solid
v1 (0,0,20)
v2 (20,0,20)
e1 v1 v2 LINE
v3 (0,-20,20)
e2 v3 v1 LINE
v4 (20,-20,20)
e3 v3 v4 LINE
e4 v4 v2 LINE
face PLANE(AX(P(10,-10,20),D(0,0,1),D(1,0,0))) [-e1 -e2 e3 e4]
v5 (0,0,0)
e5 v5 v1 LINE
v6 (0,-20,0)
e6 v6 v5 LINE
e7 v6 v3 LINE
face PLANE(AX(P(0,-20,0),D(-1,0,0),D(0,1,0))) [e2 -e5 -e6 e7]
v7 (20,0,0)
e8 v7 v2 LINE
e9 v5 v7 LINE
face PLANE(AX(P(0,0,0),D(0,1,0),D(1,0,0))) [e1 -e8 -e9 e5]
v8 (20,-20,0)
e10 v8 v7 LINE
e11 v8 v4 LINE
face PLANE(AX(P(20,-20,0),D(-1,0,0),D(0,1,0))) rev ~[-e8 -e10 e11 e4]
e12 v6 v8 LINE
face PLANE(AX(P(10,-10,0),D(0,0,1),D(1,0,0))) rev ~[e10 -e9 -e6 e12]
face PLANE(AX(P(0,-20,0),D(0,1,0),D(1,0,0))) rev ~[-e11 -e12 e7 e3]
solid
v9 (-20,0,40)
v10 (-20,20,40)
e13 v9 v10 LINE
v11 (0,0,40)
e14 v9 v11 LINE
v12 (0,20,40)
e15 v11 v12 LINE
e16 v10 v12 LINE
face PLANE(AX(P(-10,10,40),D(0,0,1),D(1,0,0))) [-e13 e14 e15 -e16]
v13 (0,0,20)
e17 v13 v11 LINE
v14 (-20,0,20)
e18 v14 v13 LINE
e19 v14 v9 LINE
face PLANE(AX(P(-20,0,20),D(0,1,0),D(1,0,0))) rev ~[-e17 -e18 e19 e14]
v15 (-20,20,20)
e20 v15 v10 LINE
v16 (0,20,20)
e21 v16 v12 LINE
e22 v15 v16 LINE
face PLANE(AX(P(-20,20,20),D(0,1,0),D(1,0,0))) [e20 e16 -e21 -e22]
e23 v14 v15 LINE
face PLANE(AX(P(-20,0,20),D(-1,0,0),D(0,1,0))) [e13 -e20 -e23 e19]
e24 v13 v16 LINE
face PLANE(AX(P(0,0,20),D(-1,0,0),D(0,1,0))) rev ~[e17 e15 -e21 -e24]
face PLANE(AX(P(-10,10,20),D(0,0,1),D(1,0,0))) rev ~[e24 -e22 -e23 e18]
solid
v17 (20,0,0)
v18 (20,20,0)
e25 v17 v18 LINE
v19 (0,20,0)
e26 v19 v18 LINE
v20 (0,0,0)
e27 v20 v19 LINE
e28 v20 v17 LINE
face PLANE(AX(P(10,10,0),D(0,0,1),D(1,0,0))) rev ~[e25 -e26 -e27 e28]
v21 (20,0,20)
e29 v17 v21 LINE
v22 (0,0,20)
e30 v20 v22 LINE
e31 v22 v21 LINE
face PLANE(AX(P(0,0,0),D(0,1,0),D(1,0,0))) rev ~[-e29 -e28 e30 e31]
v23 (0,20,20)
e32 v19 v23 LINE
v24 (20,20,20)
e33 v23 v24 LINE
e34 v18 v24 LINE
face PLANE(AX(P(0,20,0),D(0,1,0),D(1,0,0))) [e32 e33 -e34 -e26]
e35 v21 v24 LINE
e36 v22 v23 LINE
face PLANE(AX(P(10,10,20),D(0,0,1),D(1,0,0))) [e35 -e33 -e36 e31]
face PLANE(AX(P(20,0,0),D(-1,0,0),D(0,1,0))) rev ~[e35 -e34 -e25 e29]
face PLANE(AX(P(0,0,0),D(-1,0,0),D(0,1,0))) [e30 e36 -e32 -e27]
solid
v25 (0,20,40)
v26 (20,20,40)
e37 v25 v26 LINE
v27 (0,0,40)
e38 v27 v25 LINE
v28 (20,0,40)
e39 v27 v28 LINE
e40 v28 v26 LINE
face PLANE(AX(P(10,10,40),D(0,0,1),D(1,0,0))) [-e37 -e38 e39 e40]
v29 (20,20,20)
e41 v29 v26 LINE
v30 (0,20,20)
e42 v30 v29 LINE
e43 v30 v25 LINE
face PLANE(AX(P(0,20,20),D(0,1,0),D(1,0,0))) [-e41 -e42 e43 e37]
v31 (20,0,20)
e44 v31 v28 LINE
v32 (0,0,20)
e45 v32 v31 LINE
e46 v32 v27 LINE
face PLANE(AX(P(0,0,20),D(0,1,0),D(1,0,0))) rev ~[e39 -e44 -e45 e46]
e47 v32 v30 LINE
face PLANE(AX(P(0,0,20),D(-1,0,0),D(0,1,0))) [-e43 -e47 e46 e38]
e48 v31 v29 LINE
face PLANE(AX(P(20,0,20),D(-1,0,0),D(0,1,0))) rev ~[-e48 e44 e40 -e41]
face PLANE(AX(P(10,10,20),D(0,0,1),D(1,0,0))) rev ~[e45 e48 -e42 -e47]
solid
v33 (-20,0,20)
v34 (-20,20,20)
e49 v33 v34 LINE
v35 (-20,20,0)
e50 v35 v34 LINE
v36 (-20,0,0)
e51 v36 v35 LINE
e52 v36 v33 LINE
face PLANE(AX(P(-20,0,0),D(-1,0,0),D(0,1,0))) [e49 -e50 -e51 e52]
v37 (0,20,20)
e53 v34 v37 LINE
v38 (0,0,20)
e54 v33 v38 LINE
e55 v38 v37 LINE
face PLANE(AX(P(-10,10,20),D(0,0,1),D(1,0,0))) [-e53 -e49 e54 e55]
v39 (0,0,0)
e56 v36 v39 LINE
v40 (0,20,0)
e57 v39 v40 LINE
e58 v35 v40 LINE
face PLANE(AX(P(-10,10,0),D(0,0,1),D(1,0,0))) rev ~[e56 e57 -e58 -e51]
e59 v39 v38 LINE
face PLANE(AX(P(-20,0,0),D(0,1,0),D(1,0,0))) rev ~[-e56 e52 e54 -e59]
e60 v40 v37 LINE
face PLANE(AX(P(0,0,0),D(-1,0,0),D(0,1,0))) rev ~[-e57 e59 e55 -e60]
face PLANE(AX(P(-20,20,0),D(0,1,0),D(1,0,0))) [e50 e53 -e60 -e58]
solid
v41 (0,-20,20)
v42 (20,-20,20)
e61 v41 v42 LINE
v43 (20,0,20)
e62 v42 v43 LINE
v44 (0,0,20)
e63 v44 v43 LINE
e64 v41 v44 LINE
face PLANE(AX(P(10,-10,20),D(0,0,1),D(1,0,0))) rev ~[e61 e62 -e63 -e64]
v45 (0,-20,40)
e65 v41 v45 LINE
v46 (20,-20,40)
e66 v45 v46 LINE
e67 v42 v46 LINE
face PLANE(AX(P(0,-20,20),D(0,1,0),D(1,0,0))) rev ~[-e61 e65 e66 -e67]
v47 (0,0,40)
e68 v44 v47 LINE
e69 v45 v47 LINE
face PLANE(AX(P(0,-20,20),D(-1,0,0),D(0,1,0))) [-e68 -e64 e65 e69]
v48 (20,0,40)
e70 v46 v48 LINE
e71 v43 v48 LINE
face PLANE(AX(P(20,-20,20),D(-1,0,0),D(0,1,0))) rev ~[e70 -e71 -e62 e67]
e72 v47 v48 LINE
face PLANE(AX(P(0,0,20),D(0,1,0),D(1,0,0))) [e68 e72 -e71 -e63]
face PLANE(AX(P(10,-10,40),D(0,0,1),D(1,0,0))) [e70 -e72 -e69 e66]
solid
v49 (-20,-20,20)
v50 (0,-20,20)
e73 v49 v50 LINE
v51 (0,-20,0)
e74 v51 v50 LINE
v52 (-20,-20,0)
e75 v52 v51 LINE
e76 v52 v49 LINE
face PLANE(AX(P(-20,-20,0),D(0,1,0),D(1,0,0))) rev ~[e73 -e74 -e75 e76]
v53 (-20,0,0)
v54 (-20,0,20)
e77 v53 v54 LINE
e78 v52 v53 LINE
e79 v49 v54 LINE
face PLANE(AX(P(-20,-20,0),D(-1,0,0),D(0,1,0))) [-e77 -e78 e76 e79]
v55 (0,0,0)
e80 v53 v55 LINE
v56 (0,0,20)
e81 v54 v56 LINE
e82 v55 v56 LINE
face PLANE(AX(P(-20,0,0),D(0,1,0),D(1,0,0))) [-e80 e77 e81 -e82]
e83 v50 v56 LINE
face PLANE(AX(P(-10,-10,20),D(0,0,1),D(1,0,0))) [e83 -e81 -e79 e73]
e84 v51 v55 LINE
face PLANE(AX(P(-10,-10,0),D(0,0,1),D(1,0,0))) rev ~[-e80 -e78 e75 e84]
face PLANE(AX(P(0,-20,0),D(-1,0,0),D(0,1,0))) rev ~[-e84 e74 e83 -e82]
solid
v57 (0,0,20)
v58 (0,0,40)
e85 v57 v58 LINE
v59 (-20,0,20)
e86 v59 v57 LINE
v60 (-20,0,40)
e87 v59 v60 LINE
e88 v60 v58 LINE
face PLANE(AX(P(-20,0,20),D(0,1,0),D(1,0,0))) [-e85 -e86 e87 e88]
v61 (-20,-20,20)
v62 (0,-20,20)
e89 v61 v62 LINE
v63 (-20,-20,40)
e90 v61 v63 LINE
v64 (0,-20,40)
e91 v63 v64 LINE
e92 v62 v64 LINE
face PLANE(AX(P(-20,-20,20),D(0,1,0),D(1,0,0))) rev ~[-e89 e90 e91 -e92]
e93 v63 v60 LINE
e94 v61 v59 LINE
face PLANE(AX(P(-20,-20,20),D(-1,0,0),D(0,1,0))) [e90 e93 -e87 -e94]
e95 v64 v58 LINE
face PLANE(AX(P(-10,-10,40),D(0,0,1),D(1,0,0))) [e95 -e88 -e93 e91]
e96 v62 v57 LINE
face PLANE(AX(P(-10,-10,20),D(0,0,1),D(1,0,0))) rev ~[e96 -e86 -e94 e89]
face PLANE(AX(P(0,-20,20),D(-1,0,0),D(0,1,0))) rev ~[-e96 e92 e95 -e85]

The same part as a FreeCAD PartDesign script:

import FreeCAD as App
import Part
import Sketcher

doc = App.newDocument("Part")
params = doc.addObject("Spreadsheet::Sheet", "Params")
for row, (alias, value) in enumerate([
    ("sketch1_width", "20 mm"),
    ("pad1_length", "20 mm"),
    ("sketch2_width", "20 mm"),
    ("pad2_length", "20 mm"),
    ("sketch3_width", "20 mm"),
    ("pad3_length", "20 mm"),
    ("sketch4_width", "20 mm"),
    ("pad4_length", "20 mm"),
], start=1):
    params.set(f"A{row}", alias)
    params.set(f"B{row}", "=" + value)
    params.setAlias(f"B{row}", alias)

body = doc.addObject("PartDesign::Body", "Body")
body.AllowCompound = True

# Sketch on XY plane
sketch1 = body.newObject("Sketcher::SketchObject", "Sketch")
sketch1.AttachmentSupport = (doc.getObject("XY_Plane"), [""])
sketch1.MapMode = "FlatFace"
sketch1.addGeometry(Part.LineSegment(App.Vector(-20, 20, 0), App.Vector(-20, 0, 0)), False)
sketch1.addGeometry(Part.LineSegment(App.Vector(-20, 0, 0), App.Vector(0, 0, 0)), False)
sketch1.addGeometry(Part.LineSegment(App.Vector(0, 0, 0), App.Vector(0, 20, 0)), False)
sketch1.addGeometry(Part.LineSegment(App.Vector(0, 20, 0), App.Vector(-20, 20, 0)), False)
sketch1.addGeometry(Part.LineSegment(App.Vector(0, 0, 0), App.Vector(0, -20, 0)), False)
sketch1.addGeometry(Part.LineSegment(App.Vector(0, -20, 0), App.Vector(20, -20, 0)), False)
sketch1.addGeometry(Part.LineSegment(App.Vector(20, -20, 0), App.Vector(20, 0, 0)), False)
sketch1.addGeometry(Part.LineSegment(App.Vector(20, 0, 0), App.Vector(0, 0, 0)), False)
sketch1.addConstraint(Sketcher.Constraint("Coincident", 0, 2, 1, 1))
sketch1.addConstraint(Sketcher.Constraint("Coincident", 1, 2, 2, 1))
sketch1.addConstraint(Sketcher.Constraint("Coincident", 2, 2, 3, 1))
sketch1.addConstraint(Sketcher.Constraint("Coincident", 3, 2, 0, 1))
sketch1.addConstraint(Sketcher.Constraint("Coincident", 4, 2, 5, 1))
sketch1.addConstraint(Sketcher.Constraint("Coincident", 5, 2, 6, 1))
sketch1.addConstraint(Sketcher.Constraint("Coincident", 6, 2, 7, 1))
sketch1.addConstraint(Sketcher.Constraint("Coincident", 7, 2, 4, 1))
sketch1.addConstraint(Sketcher.Constraint("Vertical", 0))
sketch1.addConstraint(Sketcher.Constraint("Horizontal", 1))
sketch1.addConstraint(Sketcher.Constraint("Vertical", 2))
sketch1.addConstraint(Sketcher.Constraint("Horizontal", 3))
sketch1.addConstraint(Sketcher.Constraint("Vertical", 4))
sketch1.addConstraint(Sketcher.Constraint("Horizontal", 5))
sketch1.addConstraint(Sketcher.Constraint("Vertical", 6))
sketch1.addConstraint(Sketcher.Constraint("Horizontal", 7))
sketch1.addConstraint(Sketcher.Constraint("Coincident", 1, 2, -1, 1))
sketch1.addConstraint(Sketcher.Constraint("Coincident", 7, 2, -1, 1))
sketch1.addConstraint(Sketcher.Constraint("Symmetric", 3, 2, 5, 2, -1, 1))
sketch1.addConstraint(Sketcher.Constraint("Equal", 7, 0))
sketch1.addConstraint(Sketcher.Constraint("DistanceX", 1, 1, 1, 2, 20.0))
sketch1.setExpression("Constraints[20]", "Params.sketch1_width")
pad1 = body.newObject("PartDesign::Pad", "Pad")
pad1.Profile = sketch1
pad1.setExpression("Length", "Params.pad1_length")
body2 = doc.addObject("PartDesign::Body", "Body001")
body2.AllowCompound = True

# Sketch on XY plane
sketch2 = body2.newObject("Sketcher::SketchObject", "Sketch001")
sketch2.AttachmentSupport = (doc.getObject("XY_Plane001"), [""])
sketch2.MapMode = "FlatFace"
sketch2.addGeometry(Part.LineSegment(App.Vector(0, 20, 0), App.Vector(0, 0, 0)), False)
sketch2.addGeometry(Part.LineSegment(App.Vector(0, 0, 0), App.Vector(20, 0, 0)), False)
sketch2.addGeometry(Part.LineSegment(App.Vector(20, 0, 0), App.Vector(20, 20, 0)), False)
sketch2.addGeometry(Part.LineSegment(App.Vector(20, 20, 0), App.Vector(0, 20, 0)), False)
sketch2.addGeometry(Part.LineSegment(App.Vector(-20, 0, 0), App.Vector(-20, -20, 0)), False)
sketch2.addGeometry(Part.LineSegment(App.Vector(-20, -20, 0), App.Vector(0, -20, 0)), False)
sketch2.addGeometry(Part.LineSegment(App.Vector(0, -20, 0), App.Vector(0, 0, 0)), False)
sketch2.addGeometry(Part.LineSegment(App.Vector(0, 0, 0), App.Vector(-20, 0, 0)), False)
sketch2.addConstraint(Sketcher.Constraint("Coincident", 0, 2, 1, 1))
sketch2.addConstraint(Sketcher.Constraint("Coincident", 1, 2, 2, 1))
sketch2.addConstraint(Sketcher.Constraint("Coincident", 2, 2, 3, 1))
sketch2.addConstraint(Sketcher.Constraint("Coincident", 3, 2, 0, 1))
sketch2.addConstraint(Sketcher.Constraint("Coincident", 4, 2, 5, 1))
sketch2.addConstraint(Sketcher.Constraint("Coincident", 5, 2, 6, 1))
sketch2.addConstraint(Sketcher.Constraint("Coincident", 6, 2, 7, 1))
sketch2.addConstraint(Sketcher.Constraint("Coincident", 7, 2, 4, 1))
sketch2.addConstraint(Sketcher.Constraint("Vertical", 0))
sketch2.addConstraint(Sketcher.Constraint("Horizontal", 1))
sketch2.addConstraint(Sketcher.Constraint("Vertical", 2))
sketch2.addConstraint(Sketcher.Constraint("Horizontal", 3))
sketch2.addConstraint(Sketcher.Constraint("Vertical", 4))
sketch2.addConstraint(Sketcher.Constraint("Horizontal", 5))
sketch2.addConstraint(Sketcher.Constraint("Vertical", 6))
sketch2.addConstraint(Sketcher.Constraint("Horizontal", 7))
sketch2.addConstraint(Sketcher.Constraint("Coincident", 0, 2, -1, 1))
sketch2.addConstraint(Sketcher.Constraint("Coincident", 6, 2, -1, 1))
sketch2.addConstraint(Sketcher.Constraint("Symmetric", 2, 2, 4, 2, -1, 1))
sketch2.addConstraint(Sketcher.Constraint("Equal", 7, 0))
sketch2.addConstraint(Sketcher.Constraint("DistanceX", 1, 1, 1, 2, 20.0))
sketch2.setExpression("Constraints[20]", "Params.sketch2_width")
pad2 = body2.newObject("PartDesign::Pad", "Pad001")
pad2.Profile = sketch2
pad2.setExpression("Length", "Params.pad2_length")
body3 = doc.addObject("PartDesign::Body", "Body002")
body3.AllowCompound = True

# Sketch on XY plane
sketch3 = body3.newObject("Sketcher::SketchObject", "Sketch002")
sketch3.AttachmentSupport = (doc.getObject("XY_Plane002"), [""])
sketch3.MapMode = "FlatFace"
sketch3.AttachmentOffset = App.Placement(App.Vector(0, 0, 20), App.Rotation())
sketch3.addGeometry(Part.LineSegment(App.Vector(-20, 20, 0), App.Vector(-20, 0, 0)), False)
sketch3.addGeometry(Part.LineSegment(App.Vector(-20, 0, 0), App.Vector(0, 0, 0)), False)
sketch3.addGeometry(Part.LineSegment(App.Vector(0, 0, 0), App.Vector(0, 20, 0)), False)
sketch3.addGeometry(Part.LineSegment(App.Vector(0, 20, 0), App.Vector(-20, 20, 0)), False)
sketch3.addGeometry(Part.LineSegment(App.Vector(0, 0, 0), App.Vector(0, -20, 0)), False)
sketch3.addGeometry(Part.LineSegment(App.Vector(0, -20, 0), App.Vector(20, -20, 0)), False)
sketch3.addGeometry(Part.LineSegment(App.Vector(20, -20, 0), App.Vector(20, 0, 0)), False)
sketch3.addGeometry(Part.LineSegment(App.Vector(20, 0, 0), App.Vector(0, 0, 0)), False)
sketch3.addConstraint(Sketcher.Constraint("Coincident", 0, 2, 1, 1))
sketch3.addConstraint(Sketcher.Constraint("Coincident", 1, 2, 2, 1))
sketch3.addConstraint(Sketcher.Constraint("Coincident", 2, 2, 3, 1))
sketch3.addConstraint(Sketcher.Constraint("Coincident", 3, 2, 0, 1))
sketch3.addConstraint(Sketcher.Constraint("Coincident", 4, 2, 5, 1))
sketch3.addConstraint(Sketcher.Constraint("Coincident", 5, 2, 6, 1))
sketch3.addConstraint(Sketcher.Constraint("Coincident", 6, 2, 7, 1))
sketch3.addConstraint(Sketcher.Constraint("Coincident", 7, 2, 4, 1))
sketch3.addConstraint(Sketcher.Constraint("Vertical", 0))
sketch3.addConstraint(Sketcher.Constraint("Horizontal", 1))
sketch3.addConstraint(Sketcher.Constraint("Vertical", 2))
sketch3.addConstraint(Sketcher.Constraint("Horizontal", 3))
sketch3.addConstraint(Sketcher.Constraint("Vertical", 4))
sketch3.addConstraint(Sketcher.Constraint("Horizontal", 5))
sketch3.addConstraint(Sketcher.Constraint("Vertical", 6))
sketch3.addConstraint(Sketcher.Constraint("Horizontal", 7))
sketch3.addConstraint(Sketcher.Constraint("Coincident", 1, 2, -1, 1))
sketch3.addConstraint(Sketcher.Constraint("Coincident", 7, 2, -1, 1))
sketch3.addConstraint(Sketcher.Constraint("Symmetric", 3, 2, 5, 2, -1, 1))
sketch3.addConstraint(Sketcher.Constraint("Equal", 7, 0))
sketch3.addConstraint(Sketcher.Constraint("DistanceX", 1, 1, 1, 2, 20.0))
sketch3.setExpression("Constraints[20]", "Params.sketch3_width")
pad3 = body3.newObject("PartDesign::Pad", "Pad002")
pad3.Profile = sketch3
pad3.setExpression("Length", "Params.pad3_length")
body4 = doc.addObject("PartDesign::Body", "Body003")
body4.AllowCompound = True

# Sketch on XY plane
sketch4 = body4.newObject("Sketcher::SketchObject", "Sketch003")
sketch4.AttachmentSupport = (doc.getObject("XY_Plane003"), [""])
sketch4.MapMode = "FlatFace"
sketch4.AttachmentOffset = App.Placement(App.Vector(0, 0, 20), App.Rotation())
sketch4.addGeometry(Part.LineSegment(App.Vector(-20, 0, 0), App.Vector(-20, -20, 0)), False)
sketch4.addGeometry(Part.LineSegment(App.Vector(-20, -20, 0), App.Vector(0, -20, 0)), False)
sketch4.addGeometry(Part.LineSegment(App.Vector(0, -20, 0), App.Vector(0, 0, 0)), False)
sketch4.addGeometry(Part.LineSegment(App.Vector(0, 0, 0), App.Vector(-20, 0, 0)), False)
sketch4.addGeometry(Part.LineSegment(App.Vector(0, 20, 0), App.Vector(0, 0, 0)), False)
sketch4.addGeometry(Part.LineSegment(App.Vector(0, 0, 0), App.Vector(20, 0, 0)), False)
sketch4.addGeometry(Part.LineSegment(App.Vector(20, 0, 0), App.Vector(20, 20, 0)), False)
sketch4.addGeometry(Part.LineSegment(App.Vector(20, 20, 0), App.Vector(0, 20, 0)), False)
sketch4.addConstraint(Sketcher.Constraint("Coincident", 0, 2, 1, 1))
sketch4.addConstraint(Sketcher.Constraint("Coincident", 1, 2, 2, 1))
sketch4.addConstraint(Sketcher.Constraint("Coincident", 2, 2, 3, 1))
sketch4.addConstraint(Sketcher.Constraint("Coincident", 3, 2, 0, 1))
sketch4.addConstraint(Sketcher.Constraint("Coincident", 4, 2, 5, 1))
sketch4.addConstraint(Sketcher.Constraint("Coincident", 5, 2, 6, 1))
sketch4.addConstraint(Sketcher.Constraint("Coincident", 6, 2, 7, 1))
sketch4.addConstraint(Sketcher.Constraint("Coincident", 7, 2, 4, 1))
sketch4.addConstraint(Sketcher.Constraint("Vertical", 0))
sketch4.addConstraint(Sketcher.Constraint("Horizontal", 1))
sketch4.addConstraint(Sketcher.Constraint("Vertical", 2))
sketch4.addConstraint(Sketcher.Constraint("Horizontal", 3))
sketch4.addConstraint(Sketcher.Constraint("Vertical", 4))
sketch4.addConstraint(Sketcher.Constraint("Horizontal", 5))
sketch4.addConstraint(Sketcher.Constraint("Vertical", 6))
sketch4.addConstraint(Sketcher.Constraint("Horizontal", 7))
sketch4.addConstraint(Sketcher.Constraint("Coincident", 2, 2, -1, 1))
sketch4.addConstraint(Sketcher.Constraint("Coincident", 4, 2, -1, 1))
sketch4.addConstraint(Sketcher.Constraint("Symmetric", 0, 2, 6, 2, -1, 1))
sketch4.addConstraint(Sketcher.Constraint("Equal", 7, 0))
sketch4.addConstraint(Sketcher.Constraint("DistanceX", 1, 1, 1, 2, 20.0))
sketch4.setExpression("Constraints[20]", "Params.sketch4_width")
pad4 = body4.newObject("PartDesign::Pad", "Pad003")
pad4.Profile = sketch4
pad4.setExpression("Length", "Params.pad4_length")

doc.recompute()
